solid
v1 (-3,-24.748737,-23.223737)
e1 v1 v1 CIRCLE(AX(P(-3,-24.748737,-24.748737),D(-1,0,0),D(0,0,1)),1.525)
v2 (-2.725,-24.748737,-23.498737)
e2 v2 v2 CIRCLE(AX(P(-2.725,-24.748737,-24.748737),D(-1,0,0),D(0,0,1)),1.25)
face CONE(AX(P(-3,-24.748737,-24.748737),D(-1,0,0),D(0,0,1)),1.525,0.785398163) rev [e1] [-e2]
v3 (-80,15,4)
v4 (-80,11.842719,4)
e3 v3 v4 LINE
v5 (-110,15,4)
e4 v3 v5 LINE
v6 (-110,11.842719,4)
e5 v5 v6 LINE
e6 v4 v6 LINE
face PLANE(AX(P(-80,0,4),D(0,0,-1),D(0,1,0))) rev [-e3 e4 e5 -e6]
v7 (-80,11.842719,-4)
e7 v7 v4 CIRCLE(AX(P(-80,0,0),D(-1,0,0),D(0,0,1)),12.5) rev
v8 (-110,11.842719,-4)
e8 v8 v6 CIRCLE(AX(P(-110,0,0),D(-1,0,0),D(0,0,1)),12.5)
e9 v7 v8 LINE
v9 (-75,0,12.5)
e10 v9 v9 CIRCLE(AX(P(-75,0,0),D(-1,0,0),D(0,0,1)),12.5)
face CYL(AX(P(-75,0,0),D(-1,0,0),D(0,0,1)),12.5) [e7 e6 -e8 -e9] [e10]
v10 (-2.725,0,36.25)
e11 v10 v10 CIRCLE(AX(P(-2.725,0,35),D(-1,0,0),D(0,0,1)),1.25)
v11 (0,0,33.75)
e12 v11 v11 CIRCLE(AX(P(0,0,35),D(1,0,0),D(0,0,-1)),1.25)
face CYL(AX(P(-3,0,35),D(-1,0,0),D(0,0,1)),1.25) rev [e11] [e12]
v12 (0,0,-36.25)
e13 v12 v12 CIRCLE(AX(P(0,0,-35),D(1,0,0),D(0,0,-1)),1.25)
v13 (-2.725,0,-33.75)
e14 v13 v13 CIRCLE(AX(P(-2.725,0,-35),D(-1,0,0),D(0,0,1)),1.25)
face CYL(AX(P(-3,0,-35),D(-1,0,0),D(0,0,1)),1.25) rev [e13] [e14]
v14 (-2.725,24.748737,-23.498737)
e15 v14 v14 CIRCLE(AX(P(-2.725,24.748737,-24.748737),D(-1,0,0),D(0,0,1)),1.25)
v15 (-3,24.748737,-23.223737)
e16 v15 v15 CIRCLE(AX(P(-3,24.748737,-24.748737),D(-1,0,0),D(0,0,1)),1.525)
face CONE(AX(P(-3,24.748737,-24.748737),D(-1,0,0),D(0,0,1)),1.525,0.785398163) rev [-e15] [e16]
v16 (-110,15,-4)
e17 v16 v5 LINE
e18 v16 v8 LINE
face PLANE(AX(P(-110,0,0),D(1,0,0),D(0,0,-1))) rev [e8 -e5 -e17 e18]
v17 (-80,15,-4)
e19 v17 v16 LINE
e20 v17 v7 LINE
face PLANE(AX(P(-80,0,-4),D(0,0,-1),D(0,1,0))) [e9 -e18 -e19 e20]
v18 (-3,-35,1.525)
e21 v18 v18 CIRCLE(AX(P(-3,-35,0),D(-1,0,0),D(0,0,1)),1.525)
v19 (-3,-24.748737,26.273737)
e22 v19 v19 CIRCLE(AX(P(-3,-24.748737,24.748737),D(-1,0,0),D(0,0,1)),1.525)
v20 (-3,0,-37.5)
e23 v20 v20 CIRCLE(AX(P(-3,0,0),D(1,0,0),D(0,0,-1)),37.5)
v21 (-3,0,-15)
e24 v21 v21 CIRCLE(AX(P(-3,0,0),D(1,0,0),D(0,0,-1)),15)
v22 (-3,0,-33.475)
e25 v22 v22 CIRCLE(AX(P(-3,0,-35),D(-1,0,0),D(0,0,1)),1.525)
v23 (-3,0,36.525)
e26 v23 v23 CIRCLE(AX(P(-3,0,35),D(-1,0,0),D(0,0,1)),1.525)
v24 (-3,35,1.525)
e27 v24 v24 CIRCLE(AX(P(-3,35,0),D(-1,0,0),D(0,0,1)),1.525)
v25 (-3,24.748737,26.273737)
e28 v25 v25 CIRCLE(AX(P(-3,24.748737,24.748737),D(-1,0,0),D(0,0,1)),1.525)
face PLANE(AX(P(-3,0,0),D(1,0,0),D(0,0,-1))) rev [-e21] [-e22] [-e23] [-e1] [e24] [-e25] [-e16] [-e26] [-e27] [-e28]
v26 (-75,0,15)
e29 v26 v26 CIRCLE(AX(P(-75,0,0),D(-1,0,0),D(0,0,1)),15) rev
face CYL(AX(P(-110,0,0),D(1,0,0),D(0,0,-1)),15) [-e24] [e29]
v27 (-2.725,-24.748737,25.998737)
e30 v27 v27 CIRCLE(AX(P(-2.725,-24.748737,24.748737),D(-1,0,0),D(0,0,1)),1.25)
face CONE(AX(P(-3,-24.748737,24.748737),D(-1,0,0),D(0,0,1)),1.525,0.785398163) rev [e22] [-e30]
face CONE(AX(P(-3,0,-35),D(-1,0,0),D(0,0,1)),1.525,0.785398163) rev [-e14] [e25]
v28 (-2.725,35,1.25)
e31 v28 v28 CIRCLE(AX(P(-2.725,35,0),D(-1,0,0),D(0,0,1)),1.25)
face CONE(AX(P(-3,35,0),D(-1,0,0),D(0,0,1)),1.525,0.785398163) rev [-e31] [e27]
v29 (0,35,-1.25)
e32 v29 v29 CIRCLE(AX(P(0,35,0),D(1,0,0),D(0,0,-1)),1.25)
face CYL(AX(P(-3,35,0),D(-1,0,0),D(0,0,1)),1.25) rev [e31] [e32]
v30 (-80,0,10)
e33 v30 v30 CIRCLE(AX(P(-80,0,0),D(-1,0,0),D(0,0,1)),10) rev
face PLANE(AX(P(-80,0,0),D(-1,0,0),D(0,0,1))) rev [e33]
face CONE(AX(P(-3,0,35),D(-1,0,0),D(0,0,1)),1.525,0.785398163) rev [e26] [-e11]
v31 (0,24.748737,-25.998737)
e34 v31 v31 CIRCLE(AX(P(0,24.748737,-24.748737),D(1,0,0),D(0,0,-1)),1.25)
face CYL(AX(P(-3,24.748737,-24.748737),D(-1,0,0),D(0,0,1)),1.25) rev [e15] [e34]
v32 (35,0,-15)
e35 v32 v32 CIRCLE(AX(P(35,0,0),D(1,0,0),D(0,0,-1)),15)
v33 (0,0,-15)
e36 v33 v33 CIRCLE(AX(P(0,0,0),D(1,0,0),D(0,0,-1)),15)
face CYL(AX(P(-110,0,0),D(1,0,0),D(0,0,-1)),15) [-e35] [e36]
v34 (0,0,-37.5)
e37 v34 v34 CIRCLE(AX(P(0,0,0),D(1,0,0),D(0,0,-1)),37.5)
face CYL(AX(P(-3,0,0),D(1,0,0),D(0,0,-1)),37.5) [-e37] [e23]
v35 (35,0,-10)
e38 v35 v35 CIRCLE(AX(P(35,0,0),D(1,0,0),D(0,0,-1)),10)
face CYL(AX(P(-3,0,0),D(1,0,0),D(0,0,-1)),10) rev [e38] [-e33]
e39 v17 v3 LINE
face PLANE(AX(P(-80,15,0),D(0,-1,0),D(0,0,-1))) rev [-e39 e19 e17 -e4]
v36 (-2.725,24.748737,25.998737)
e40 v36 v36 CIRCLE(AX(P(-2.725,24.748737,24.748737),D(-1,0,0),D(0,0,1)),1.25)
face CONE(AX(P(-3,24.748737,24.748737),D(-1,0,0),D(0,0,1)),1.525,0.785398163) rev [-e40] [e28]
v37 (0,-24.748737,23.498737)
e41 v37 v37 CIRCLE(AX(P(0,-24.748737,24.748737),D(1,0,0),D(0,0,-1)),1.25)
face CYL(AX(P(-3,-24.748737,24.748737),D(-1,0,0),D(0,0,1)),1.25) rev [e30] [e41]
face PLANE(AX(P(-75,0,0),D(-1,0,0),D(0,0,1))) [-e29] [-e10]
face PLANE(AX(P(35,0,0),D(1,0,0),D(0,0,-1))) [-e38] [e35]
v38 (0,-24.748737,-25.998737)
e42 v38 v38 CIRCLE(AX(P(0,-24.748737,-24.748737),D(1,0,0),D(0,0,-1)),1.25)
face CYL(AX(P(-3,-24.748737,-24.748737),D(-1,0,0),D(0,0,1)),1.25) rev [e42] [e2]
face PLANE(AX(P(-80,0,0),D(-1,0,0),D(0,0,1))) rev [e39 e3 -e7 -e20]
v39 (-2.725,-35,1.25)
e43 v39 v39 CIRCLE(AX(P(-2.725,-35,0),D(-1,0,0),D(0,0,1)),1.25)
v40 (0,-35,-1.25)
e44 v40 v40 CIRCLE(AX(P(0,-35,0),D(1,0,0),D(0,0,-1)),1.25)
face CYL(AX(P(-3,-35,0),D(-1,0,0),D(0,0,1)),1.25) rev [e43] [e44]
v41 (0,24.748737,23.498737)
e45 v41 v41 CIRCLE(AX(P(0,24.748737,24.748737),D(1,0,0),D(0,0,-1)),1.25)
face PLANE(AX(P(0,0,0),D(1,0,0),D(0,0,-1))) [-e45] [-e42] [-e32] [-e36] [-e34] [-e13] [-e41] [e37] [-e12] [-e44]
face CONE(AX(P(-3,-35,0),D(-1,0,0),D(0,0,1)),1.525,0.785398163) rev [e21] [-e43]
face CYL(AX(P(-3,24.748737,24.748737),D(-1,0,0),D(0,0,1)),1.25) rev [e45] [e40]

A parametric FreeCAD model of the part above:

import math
import FreeCAD as App
import Part
import Sketcher

V = App.Vector
Q = App.Units.Quantity

doc = App.newDocument("Part")
body = doc.addObject("PartDesign::Body", "Body")

sketch1 = body.newObject("Sketcher::SketchObject", "Sketch")
sketch1.AttachmentSupport = (doc.getObject("YZ_Plane"), [""])
sketch1.MapMode = "FlatFace"
sketch1.addGeometry([
    Part.Circle(V(0, 0, 0), V(0, 0, 1), 25),
    Part.Circle(V(0, 0, 0), V(0, 0, 1), 10),
], False)
sketch1.addConstraint([
    Sketcher.Constraint("Coincident", 0, 3, -1, 1),
    Sketcher.Constraint("Coincident", 1, 3, -1, 1),
    Sketcher.Constraint("Diameter", 0, Q("50 mm")),
    Sketcher.Constraint("Diameter", 1, Q("20 mm")),
])
pad1 = body.newObject("PartDesign::Pad", "Pad")
pad1.Profile = sketch1
pad1.Length = 3
pad1.Reversed = True
body2 = doc.addObject("PartDesign::Body", "Body001")

sketch2 = body2.newObject("Sketcher::SketchObject", "Sketch001")
sketch2.AttachmentSupport = (doc.getObject("YZ_Plane001"), [""])
sketch2.MapMode = "FlatFace"
sketch2.addGeometry([
    Part.Circle(V(0, 0, 0), V(0, 0, 1), 15),
    Part.Circle(V(0, 0, 0), V(0, 0, 1), 10),
], False)
sketch2.addConstraint([
    Sketcher.Constraint("Coincident", 0, 3, -1, 1),
    Sketcher.Constraint("Coincident", 1, 3, -1, 1),
    Sketcher.Constraint("Diameter", 0, Q("30 mm")),
    Sketcher.Constraint("Diameter", 1, Q("20 mm")),
])
pad2 = body2.newObject("PartDesign::Pad", "Pad001")
pad2.Profile = sketch2
pad2.Type = "TwoLengths"
pad2.Length = 35
pad2.Length2 = 110
doc.recompute()

boolean = body.newObject("PartDesign::Boolean", "Boolean")
boolean.Type = "Fuse"
boolean.addObjects([body2])

sketch3 = body.newObject("Sketcher::SketchObject", "Sketch002")
sketch3.AttachmentSupport = (doc.getObject("YZ_Plane"), [""])
sketch3.MapMode = "FlatFace"
sketch3.addGeometry([
    Part.Circle(V(0, 0, 0), V(0, 0, 1), 38),
    Part.Circle(V(0, 0, 0), V(0, 0, 1), 25),
], False)
sketch3.addConstraint([
    Sketcher.Constraint("Coincident", 0, 3, -1, 1),
    Sketcher.Constraint("Coincident", 1, 3, -1, 1),
    Sketcher.Constraint("Diameter", 0, Q("75 mm")),
    Sketcher.Constraint("Diameter", 1, Q("50 mm")),
])
pad3 = body.newObject("PartDesign::Pad", "Pad002")
pad3.Profile = sketch3
pad3.Length = 3
pad3.Reversed = True

sketch4 = body.newObject("Sketcher::SketchObject", "Sketch003")
sketch4.AttachmentSupport = (doc.getObject("YZ_Plane"), [""])
sketch4.MapMode = "FlatFace"
sketch4.AttachmentOffset = App.Placement(V(0, 0, -3), App.Rotation())
sketch4.addGeometry([
    Part.Circle(V(0, 35, 0), V(0, 0, 1), 1.2),
    Part.Circle(V(35, 0, 0), V(0, 0, 1), 1.2),
    Part.Circle(V(0, -35, 0), V(0, 0, 1), 1.2),
    Part.Circle(V(-35, 0, 0), V(0, 0, 1), 1.2),
    Part.Circle(V(24.7, 24.7, 0), V(0, 0, 1), 1.2),
    Part.Circle(V(24.7, -24.7, 0), V(0, 0, 1), 1.2),
    Part.Circle(V(-24.7, -24.7, 0), V(0, 0, 1), 1.2),
    Part.Circle(V(-24.7, 24.7, 0), V(0, 0, 1), 1.2),
], False)
sketch4.addConstraint([
    Sketcher.Constraint("Equal", 0, 1),
    Sketcher.Constraint("Equal", 1, 2),
    Sketcher.Constraint("Equal", 2, 3),
    Sketcher.Constraint("Equal", 3, 4),
    Sketcher.Constraint("Equal", 4, 5),
    Sketcher.Constraint("Equal", 5, 6),
    Sketcher.Constraint("Equal", 6, 7),
    Sketcher.Constraint("Symmetric", 0, 3, 2, 3, -1, 1),
    Sketcher.Constraint("Symmetric", 1, 3, 3, 3, -1, 1),
    Sketcher.Constraint("Symmetric", 4, 3, 6, 3, -1, 1),
    Sketcher.Constraint("Symmetric", 5, 3, 7, 3, -1, 1),
    Sketcher.Constraint("Symmetric", 5, 3, 6, 3, -2),
    Sketcher.Constraint("PointOnObject", 0, 3, -2),
    Sketcher.Constraint("PointOnObject", 1, 3, -1),
    Sketcher.Constraint("Diameter", 0, Q("2.5 mm")),
    Sketcher.Constraint("DistanceY", -1, 1, 0, 3, Q("35 mm")),
    Sketcher.Constraint("DistanceX", -1, 1, 1, 3, Q("35 mm")),
    Sketcher.Constraint("DistanceX", -1, 1, 4, 3, Q("24.748737 mm")),
    Sketcher.Constraint("DistanceY", -1, 1, 4, 3, Q("24.748737 mm")),
])
doc.recompute()
hole = body.newObject("PartDesign::Hole", "Hole")
hole.Profile = sketch4
hole.ThreadType = "None"
hole.Diameter = 2.5
hole.DepthType = "ThroughAll"
hole.HoleCutType = "Countersink"
hole.HoleCutDiameter = 3.05
hole.HoleCutCountersinkAngle = 90
hole.Reversed = True

sketch5 = body.newObject("Sketcher::SketchObject", "Sketch004")
sketch5.AttachmentSupport = (doc.getObject("YZ_Plane"), [""])
sketch5.MapMode = "FlatFace"
sketch5.AttachmentOffset = App.Placement(V(0, 0, -110), App.Rotation())
sketch5.addGeometry([
    Part.Circle(V(0, 0, 0), V(0, 0, 1), 15),
    Part.Circle(V(0, 0, 0), V(0, 0, 1), 12),
], False)
sketch5.addConstraint([
    Sketcher.Constraint("Coincident", 0, 3, -1, 1),
    Sketcher.Constraint("Coincident", 1, 3, -1, 1),
    Sketcher.Constraint("Diameter", 0, Q("30 mm")),
    Sketcher.Constraint("Diameter", 1, Q("25 mm")),
])
pocket1 = body.newObject("PartDesign::Pocket", "Pocket")
pocket1.Profile = sketch5
pocket1.Length = 35
pocket1.Reversed = True

sketch6 = body.newObject("Sketcher::SketchObject", "Sketch005")
sketch6.AttachmentSupport = (doc.getObject("YZ_Plane"), [""])
sketch6.MapMode = "FlatFace"
sketch6.AttachmentOffset = App.Placement(V(0, 0, -110), App.Rotation())
sketch6.addGeometry([
    Part.LineSegment(V(15, 4, 0), V(15, -4, 0)),
    Part.LineSegment(V(15, -4, 0), V(11.8, -4, 0)),
    Part.ArcOfCircle(Part.Circle(V(0, 0, 0), V(0, 0, 1), 12.5), math.radians(-161), math.radians(-19)),
    Part.ArcOfCircle(Part.Circle(V(0, 0, 0), V(0, 0, 1), 12.5), math.radians(161), math.radians(199)),
    Part.ArcOfCircle(Part.Circle(V(0, 0, 0), V(0, 0, 1), 12.5), math.radians(90), math.radians(161)),
    Part.ArcOfCircle(Part.Circle(V(0, 0, 0), V(0, 0, 1), 12.5), math.radians(19), math.radians(90)),
    Part.LineSegment(V(11.8, 4, 0), V(15, 4, 0)),
], False)
sketch6.addConstraint([
    Sketcher.Constraint("Coincident", 0, 2, 1, 1),
    Sketcher.Constraint("Coincident", 1, 2, 2, 2),
    Sketcher.Constraint("Tangent", 2, 1, 3, 2),
    Sketcher.Constraint("Tangent", 3, 1, 4, 2),
    Sketcher.Constraint("Tangent", 4, 1, 5, 2),
    Sketcher.Constraint("Coincident", 5, 1, 6, 1),
    Sketcher.Constraint("Coincident", 6, 2, 0, 1),
    Sketcher.Constraint("Vertical", 0),
    Sketcher.Constraint("Horizontal", 1),
    Sketcher.Constraint("Horizontal", 6),
    Sketcher.Constraint("Coincident", 2, 3, -1, 1),
    Sketcher.Constraint("Coincident", 4, 3, -1, 1),
    Sketcher.Constraint("Equal", 4, 5),
    Sketcher.Constraint("PointOnObject", 4, 1, -2),
    Sketcher.Constraint("Horizontal", 1, 2, 2, 1),
    Sketcher.Constraint("Horizontal", 3, 1, 5, 1),
    Sketcher.Constraint("Vertical", 2, 1, 3, 1),
    Sketcher.Constraint("Radius", 2, Q("12.5 mm")),
    Sketcher.Constraint("DistanceY", 0, 2, 0, 1, Q("8 mm")),
    Sketcher.Constraint("DistanceX", -1, 1, 0, 2, Q("15 mm")),
])
pad4 = body.newObject("PartDesign::Pad", "Pad003")
pad4.Profile = sketch6
pad4.Length = 30

doc.recompute()
